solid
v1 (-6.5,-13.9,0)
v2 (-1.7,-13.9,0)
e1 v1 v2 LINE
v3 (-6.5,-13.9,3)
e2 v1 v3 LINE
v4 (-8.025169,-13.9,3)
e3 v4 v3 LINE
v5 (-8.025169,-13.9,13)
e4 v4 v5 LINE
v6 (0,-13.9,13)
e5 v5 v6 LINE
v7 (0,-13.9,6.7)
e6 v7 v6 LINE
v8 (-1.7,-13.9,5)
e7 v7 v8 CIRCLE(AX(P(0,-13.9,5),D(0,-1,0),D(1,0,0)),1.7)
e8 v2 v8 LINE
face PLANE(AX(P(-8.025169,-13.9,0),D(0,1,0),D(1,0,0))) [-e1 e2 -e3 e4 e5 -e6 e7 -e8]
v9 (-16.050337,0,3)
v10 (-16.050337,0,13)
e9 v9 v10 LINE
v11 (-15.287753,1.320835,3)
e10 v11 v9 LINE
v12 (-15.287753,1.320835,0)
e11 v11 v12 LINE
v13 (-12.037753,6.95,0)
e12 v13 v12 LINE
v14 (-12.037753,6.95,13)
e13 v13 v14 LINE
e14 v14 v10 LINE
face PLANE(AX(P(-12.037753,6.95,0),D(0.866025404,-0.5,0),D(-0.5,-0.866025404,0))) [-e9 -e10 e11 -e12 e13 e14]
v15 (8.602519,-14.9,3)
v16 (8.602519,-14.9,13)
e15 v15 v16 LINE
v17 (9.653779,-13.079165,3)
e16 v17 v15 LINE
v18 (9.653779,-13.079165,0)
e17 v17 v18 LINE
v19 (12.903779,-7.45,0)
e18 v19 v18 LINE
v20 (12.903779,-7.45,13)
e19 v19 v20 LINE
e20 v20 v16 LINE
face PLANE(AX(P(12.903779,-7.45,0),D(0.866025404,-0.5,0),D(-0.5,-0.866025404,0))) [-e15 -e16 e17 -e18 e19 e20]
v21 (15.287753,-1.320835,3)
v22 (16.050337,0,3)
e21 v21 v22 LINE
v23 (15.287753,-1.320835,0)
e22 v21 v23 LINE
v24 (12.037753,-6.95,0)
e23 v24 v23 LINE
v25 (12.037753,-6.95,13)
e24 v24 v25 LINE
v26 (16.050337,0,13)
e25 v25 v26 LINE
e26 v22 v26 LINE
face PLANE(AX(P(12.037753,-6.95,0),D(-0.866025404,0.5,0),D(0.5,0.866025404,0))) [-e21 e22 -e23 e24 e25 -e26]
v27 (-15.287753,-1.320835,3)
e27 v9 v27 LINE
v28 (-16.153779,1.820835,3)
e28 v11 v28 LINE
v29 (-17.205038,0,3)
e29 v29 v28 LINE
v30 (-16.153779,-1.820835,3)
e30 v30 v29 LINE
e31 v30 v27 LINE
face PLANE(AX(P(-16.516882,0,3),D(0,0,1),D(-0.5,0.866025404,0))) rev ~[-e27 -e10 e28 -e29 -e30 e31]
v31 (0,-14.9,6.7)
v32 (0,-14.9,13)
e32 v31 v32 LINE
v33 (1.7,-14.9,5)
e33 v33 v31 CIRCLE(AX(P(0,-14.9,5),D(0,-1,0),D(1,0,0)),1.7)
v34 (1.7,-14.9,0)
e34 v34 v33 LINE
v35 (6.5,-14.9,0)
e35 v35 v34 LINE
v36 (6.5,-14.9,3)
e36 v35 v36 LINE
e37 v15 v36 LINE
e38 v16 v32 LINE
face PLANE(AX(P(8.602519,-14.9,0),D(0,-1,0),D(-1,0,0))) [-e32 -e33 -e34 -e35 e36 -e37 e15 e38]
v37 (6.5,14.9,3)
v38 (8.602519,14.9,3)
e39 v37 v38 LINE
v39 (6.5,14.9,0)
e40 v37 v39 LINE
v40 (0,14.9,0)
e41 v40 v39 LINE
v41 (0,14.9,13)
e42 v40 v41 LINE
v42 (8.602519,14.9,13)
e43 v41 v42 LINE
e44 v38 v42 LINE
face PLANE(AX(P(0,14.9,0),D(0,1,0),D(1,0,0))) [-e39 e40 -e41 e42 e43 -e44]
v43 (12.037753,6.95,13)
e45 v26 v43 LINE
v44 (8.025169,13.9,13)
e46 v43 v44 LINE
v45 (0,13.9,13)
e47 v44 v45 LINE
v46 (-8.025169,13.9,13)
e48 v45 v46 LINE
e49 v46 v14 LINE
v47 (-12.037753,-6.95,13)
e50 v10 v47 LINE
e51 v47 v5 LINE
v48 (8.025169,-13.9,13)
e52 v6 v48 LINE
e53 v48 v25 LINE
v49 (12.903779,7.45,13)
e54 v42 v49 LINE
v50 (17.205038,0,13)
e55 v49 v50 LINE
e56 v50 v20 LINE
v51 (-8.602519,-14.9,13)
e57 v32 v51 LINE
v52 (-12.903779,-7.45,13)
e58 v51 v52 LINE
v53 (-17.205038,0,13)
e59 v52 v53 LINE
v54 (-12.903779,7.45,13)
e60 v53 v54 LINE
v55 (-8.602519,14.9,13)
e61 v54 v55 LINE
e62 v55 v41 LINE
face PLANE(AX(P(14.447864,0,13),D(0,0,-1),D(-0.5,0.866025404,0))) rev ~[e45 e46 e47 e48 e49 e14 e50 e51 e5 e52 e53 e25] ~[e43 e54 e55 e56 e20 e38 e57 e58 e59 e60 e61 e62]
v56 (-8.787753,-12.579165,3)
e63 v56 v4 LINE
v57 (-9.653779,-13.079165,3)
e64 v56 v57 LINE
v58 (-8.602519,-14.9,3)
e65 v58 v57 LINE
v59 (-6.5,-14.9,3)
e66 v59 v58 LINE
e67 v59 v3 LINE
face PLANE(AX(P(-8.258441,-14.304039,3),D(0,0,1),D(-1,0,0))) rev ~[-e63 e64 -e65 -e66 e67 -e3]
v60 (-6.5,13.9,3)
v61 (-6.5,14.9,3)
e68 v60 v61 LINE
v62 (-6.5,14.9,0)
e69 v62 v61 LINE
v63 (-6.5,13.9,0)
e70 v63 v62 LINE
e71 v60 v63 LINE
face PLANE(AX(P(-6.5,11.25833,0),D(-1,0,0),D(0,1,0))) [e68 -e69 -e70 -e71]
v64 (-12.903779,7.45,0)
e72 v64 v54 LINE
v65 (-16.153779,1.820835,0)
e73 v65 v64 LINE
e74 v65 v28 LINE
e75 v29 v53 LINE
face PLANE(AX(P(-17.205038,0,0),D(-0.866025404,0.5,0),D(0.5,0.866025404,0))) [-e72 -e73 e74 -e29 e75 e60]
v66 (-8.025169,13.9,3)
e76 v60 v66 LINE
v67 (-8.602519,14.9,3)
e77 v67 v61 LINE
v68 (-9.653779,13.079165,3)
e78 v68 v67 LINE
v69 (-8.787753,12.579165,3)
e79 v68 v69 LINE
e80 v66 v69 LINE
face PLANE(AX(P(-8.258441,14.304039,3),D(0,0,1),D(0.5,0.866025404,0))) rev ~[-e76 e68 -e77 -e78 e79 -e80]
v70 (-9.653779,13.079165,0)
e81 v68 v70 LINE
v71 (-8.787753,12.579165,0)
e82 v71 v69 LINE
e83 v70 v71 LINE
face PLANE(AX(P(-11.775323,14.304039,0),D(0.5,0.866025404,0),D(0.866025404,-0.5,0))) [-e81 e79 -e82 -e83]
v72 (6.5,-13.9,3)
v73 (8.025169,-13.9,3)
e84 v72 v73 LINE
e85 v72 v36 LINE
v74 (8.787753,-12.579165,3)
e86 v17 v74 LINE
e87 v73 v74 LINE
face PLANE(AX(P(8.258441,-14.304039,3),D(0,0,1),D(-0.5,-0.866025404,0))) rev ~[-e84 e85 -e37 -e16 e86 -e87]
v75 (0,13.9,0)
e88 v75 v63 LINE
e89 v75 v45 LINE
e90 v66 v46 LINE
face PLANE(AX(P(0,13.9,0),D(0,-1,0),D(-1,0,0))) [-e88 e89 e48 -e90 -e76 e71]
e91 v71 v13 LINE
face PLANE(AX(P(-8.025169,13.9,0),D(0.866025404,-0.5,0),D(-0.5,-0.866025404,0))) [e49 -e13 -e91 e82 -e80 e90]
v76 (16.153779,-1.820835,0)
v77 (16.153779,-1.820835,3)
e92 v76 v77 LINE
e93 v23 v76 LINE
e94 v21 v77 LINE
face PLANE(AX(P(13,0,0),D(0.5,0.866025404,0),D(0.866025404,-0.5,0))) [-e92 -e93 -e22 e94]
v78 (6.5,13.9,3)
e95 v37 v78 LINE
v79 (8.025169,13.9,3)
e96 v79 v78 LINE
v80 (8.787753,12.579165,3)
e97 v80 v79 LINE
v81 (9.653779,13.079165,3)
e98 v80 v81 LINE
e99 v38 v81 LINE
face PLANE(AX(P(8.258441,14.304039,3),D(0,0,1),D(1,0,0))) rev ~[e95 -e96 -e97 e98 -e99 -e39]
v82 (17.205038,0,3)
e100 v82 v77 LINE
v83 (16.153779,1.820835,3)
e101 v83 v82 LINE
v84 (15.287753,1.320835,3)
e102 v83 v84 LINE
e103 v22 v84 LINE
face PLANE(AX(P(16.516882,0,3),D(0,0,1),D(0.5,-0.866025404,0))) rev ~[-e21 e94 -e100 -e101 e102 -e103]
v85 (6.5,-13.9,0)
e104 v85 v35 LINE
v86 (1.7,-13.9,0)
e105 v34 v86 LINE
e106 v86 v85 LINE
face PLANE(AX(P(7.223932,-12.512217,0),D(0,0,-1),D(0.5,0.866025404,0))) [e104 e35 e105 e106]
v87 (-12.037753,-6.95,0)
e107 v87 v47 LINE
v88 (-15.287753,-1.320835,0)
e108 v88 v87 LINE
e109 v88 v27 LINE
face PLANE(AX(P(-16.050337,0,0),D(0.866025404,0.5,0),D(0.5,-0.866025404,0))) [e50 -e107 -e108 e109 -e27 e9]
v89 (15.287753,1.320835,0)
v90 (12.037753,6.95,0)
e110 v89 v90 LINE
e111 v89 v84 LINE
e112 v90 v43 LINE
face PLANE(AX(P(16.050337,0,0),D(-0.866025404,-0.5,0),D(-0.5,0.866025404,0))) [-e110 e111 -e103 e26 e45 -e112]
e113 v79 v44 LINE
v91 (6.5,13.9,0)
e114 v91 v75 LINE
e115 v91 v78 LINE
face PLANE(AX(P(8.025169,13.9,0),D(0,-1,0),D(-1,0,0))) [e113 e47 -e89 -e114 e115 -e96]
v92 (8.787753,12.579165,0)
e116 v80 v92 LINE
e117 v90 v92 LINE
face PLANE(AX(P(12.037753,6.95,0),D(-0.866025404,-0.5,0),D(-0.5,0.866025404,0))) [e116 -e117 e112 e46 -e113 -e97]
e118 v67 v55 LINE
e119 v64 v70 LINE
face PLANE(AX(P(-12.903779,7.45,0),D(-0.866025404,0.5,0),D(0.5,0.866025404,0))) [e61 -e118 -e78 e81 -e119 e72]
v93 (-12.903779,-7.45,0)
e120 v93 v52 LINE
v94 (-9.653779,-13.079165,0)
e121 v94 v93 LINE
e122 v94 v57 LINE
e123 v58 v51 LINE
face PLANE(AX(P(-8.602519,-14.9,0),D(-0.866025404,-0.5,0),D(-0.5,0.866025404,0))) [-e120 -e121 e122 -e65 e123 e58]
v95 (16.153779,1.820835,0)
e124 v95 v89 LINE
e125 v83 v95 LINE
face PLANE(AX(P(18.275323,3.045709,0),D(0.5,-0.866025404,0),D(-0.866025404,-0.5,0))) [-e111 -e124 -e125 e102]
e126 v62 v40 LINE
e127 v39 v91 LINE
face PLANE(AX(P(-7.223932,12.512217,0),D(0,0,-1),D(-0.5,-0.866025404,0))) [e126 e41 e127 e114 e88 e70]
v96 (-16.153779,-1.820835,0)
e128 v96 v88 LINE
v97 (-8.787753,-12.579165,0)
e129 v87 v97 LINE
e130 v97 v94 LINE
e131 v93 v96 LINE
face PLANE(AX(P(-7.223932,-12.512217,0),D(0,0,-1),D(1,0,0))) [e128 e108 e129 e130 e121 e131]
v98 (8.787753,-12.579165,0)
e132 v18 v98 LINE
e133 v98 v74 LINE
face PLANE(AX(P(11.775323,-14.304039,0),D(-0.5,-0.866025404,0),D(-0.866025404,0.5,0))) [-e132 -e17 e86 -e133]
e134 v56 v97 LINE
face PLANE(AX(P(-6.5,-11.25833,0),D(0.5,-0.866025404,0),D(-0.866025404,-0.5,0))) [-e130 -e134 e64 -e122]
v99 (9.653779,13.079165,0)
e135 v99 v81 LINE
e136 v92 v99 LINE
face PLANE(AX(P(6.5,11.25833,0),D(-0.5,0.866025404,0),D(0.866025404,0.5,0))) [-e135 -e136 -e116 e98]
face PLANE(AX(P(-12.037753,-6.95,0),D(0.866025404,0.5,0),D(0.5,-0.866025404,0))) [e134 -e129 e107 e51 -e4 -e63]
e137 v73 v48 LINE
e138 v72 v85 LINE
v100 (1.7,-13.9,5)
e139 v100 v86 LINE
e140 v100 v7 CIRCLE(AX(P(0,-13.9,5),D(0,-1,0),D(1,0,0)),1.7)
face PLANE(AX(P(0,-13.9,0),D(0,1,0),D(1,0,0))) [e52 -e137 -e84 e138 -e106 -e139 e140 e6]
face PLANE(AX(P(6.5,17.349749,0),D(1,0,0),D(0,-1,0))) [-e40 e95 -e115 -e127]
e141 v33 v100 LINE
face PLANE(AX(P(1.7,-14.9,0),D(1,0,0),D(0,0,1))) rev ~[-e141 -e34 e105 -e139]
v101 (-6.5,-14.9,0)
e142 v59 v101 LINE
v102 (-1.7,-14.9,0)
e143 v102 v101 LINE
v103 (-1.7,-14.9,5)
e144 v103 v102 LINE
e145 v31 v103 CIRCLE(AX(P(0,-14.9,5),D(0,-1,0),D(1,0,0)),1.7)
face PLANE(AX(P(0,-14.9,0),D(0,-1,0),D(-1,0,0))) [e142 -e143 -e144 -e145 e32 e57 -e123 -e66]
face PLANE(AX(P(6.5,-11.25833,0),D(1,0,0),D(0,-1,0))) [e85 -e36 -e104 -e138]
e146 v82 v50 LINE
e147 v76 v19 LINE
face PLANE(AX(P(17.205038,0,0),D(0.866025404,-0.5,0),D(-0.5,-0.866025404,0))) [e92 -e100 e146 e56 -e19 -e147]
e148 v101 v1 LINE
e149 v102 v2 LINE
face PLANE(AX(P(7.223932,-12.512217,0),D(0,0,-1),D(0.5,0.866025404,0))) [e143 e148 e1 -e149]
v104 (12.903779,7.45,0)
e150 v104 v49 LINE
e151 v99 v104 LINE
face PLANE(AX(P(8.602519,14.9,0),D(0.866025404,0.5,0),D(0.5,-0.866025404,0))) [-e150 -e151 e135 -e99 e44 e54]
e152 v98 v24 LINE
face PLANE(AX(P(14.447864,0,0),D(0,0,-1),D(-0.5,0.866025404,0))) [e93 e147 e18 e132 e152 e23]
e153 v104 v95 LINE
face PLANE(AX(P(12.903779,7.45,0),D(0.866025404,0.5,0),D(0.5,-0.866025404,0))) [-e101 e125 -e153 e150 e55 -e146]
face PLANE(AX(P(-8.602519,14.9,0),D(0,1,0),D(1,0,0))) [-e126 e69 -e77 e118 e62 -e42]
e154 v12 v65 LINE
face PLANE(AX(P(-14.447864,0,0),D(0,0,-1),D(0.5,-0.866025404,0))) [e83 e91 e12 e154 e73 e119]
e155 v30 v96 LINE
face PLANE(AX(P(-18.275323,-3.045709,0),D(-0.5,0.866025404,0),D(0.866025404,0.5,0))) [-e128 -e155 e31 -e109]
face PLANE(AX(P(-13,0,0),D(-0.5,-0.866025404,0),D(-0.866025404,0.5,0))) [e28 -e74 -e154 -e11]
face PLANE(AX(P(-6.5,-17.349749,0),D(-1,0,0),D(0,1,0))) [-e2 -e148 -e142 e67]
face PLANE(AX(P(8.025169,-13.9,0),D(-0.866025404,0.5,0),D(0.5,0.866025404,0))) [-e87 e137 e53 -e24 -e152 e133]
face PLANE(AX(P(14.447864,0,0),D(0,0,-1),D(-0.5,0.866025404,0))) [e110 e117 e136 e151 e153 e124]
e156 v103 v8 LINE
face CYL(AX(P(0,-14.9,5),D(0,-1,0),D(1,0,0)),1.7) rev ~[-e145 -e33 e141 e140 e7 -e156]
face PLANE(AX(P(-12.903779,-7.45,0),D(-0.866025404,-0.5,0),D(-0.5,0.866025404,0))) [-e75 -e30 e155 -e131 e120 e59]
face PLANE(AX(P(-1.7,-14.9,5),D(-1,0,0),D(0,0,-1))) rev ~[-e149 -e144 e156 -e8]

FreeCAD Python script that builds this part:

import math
import FreeCAD as App
import Part
import Sketcher
Q = App.Units.Quantity


def add_polygon(sketch, points):
    """Adds a closed chain of lines whose ends are joined by coincident constraints."""
    first, n = sketch.GeometryCount, len(points)
    for a, b in zip(points, points[1:] + points[:1]):
        sketch.addGeometry(Part.LineSegment(App.Vector(*a, 0), App.Vector(*b, 0)), False)
    for i in range(n):
        sketch.addConstraint(Sketcher.Constraint("Coincident", first + i, 2, first + (i + 1) % n, 1))

doc = App.newDocument("Part")
body = doc.addObject("PartDesign::Body", "Body")

# Sketch on XY plane
sketch1 = body.newObject("Sketcher::SketchObject", "Sketch")
sketch1.AttachmentSupport = (doc.getObject("XY_Plane"), [""])
sketch1.MapMode = "FlatFace"
add_polygon(sketch1, [(8.6, 14.9), (0, 14.9), (0, 13.9), (8, 13.9), (12, 7), (12.9, 7.5)])  # lines 0-5
sketch1.addConstraint([
    Sketcher.Constraint("Horizontal", 0),
    Sketcher.Constraint("Vertical", 1),
    Sketcher.Constraint("Horizontal", 2),
    Sketcher.Constraint("PointOnObject", 0, 2, -2),
    Sketcher.Constraint("Perpendicular", 3, 4),
    Sketcher.Constraint("Perpendicular", 4, 5),
    Sketcher.Constraint("DistanceY", 1, 2, 1, 1, Q("1 mm")),
    Sketcher.Constraint("Angle", 3, Q("-60 deg")),
    Sketcher.Constraint("Distance", 4, Q("1 mm")),
    Sketcher.Constraint("DistanceY", -1, 1, 0, 2, Q("14.9 mm")),
    Sketcher.Constraint("DistanceY", -1, 1, 3, 2, Q("6.95 mm")),
    Sketcher.Constraint("DistanceX", 0, 2, 0, 1, Q("8.602519 mm")),
])
pad1 = body.newObject("PartDesign::Pad", "Pad")
pad1.Profile = sketch1
pad1.Length = 13

# Sketch on XY plane
sketch2 = body.newObject("Sketcher::SketchObject", "Sketch001")
sketch2.AttachmentSupport = (doc.getObject("XY_Plane"), [""])
sketch2.MapMode = "FlatFace"
add_polygon(sketch2, [(6, 11), (12, 14), (6, 17)])  # lines 0-2
sketch2.addConstraint([
    Sketcher.Constraint("Vertical", 2),
    Sketcher.Constraint("Equal", 0, 1),
    Sketcher.Constraint("Angle", 0, Q("30 deg")),
    Sketcher.Constraint("DistanceX", -1, 1, 1, 2, Q("6.5 mm")),
    Sketcher.Constraint("DistanceY", 2, 2, 2, 1, Q("6.091418 mm")),
    Sketcher.Constraint("DistanceY", -1, 1, 0, 2, Q("14.304039 mm")),
])
pocket1 = body.newObject("PartDesign::Pocket", "Pocket")
pocket1.Profile = sketch2
pocket1.Length = 3
pocket1.Reversed = True
doc.recompute()

polarpattern = body.newObject("PartDesign::PolarPattern", "PolarPattern")
polarpattern.Originals = [pad1, pocket1]
polarpattern.Axis = (doc.getObject("Z_Axis"), [""])
polarpattern.Angle = 360
polarpattern.Occurrences = 6
body.Tip = polarpattern

# Sketch on XZ plane
sketch3 = body.newObject("Sketcher::SketchObject", "Sketch002")
sketch3.AttachmentSupport = (doc.getObject("XZ_Plane"), [""])
sketch3.MapMode = "FlatFace"
sketch3.AttachmentOffset = App.Placement(App.Vector(0, 0, 14.9), App.Rotation())
sketch3.addGeometry([
    Part.ArcOfCircle(Part.Circle(App.Vector(0, 5, 0), App.Vector(0, 0, 1), 1.7), math.radians(0), math.radians(180)),
    Part.LineSegment(App.Vector(-1.7, 5, 0), App.Vector(-1.7, 0, 0)),
    Part.LineSegment(App.Vector(-1.7, 0, 0), App.Vector(1.7, 0, 0)),
    Part.LineSegment(App.Vector(1.7, 0, 0), App.Vector(1.7, 5, 0)),
], False)
sketch3.addConstraint([
    Sketcher.Constraint("Tangent", 0, 2, 1, 1),
    Sketcher.Constraint("Coincident", 1, 2, 2, 1),
    Sketcher.Constraint("Coincident", 2, 2, 3, 1),
    Sketcher.Constraint("Tangent", 3, 2, 0, 1),
    Sketcher.Constraint("Vertical", 1),
    Sketcher.Constraint("Horizontal", 2),
    Sketcher.Constraint("Vertical", 3),
    Sketcher.Constraint("Symmetric", 1, 2, 2, 2, -1, 1),
    Sketcher.Constraint("Radius", 0, Q("1.7 mm")),
    Sketcher.Constraint("DistanceY", 1, 2, 1, 1, Q("5 mm")),
])
pocket2 = body.newObject("PartDesign::Pocket", "Pocket001")
pocket2.Profile = sketch3
pocket2.Length = 2

doc.recompute()
